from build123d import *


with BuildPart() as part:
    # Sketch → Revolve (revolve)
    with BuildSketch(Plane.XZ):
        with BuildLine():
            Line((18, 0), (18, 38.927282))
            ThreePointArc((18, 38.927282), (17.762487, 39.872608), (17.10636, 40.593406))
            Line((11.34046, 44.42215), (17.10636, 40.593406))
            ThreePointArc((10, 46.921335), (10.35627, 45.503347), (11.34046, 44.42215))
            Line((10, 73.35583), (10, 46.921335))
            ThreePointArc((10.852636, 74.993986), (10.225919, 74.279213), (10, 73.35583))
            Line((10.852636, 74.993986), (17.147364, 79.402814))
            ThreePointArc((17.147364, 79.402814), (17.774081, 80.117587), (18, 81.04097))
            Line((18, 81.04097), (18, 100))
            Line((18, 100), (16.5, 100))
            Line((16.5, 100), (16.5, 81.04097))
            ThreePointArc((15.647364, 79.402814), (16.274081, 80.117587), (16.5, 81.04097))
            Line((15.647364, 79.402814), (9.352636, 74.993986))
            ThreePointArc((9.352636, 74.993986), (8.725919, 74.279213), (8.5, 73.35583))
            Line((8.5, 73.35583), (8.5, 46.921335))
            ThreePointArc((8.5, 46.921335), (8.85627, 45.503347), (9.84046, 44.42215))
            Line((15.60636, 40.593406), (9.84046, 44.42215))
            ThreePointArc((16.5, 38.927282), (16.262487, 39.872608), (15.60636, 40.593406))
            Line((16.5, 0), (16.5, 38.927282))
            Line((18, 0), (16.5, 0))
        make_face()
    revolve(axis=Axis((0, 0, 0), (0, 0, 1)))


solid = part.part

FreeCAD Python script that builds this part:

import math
import FreeCAD as App
import Part
import Sketcher

doc = App.newDocument("Part")
params = doc.addObject("Spreadsheet::Sheet", "Params")
for row, (alias, value) in enumerate([
    ("sketch1_radius", "1.999999 mm"),
    ("sketch1_radius2", "3.000001 mm"),
    ("sketch1_width", "1.5 mm"),
    ("revolution_angle", "360 deg"),
], start=1):
    params.set(f"A{row}", alias)
    params.set(f"B{row}", "=" + value)
    params.setAlias(f"B{row}", alias)

body = doc.addObject("PartDesign::Body", "Body")

# Sketch on XZ plane
sketch1 = body.newObject("Sketcher::SketchObject", "Sketch")
sketch1.AttachmentSupport = (doc.getObject("XZ_Plane"), [""])
sketch1.MapMode = "FlatFace"
sketch1.addGeometry([
    Part.LineSegment(App.Vector(18, 0, 0), App.Vector(18, 38.9, 0)),  # 0
    Part.ArcOfCircle(Part.Circle(App.Vector(16, 38.9, 0), App.Vector(0, 0, 1), 2), math.radians(0), math.radians(56)),  # 1
    Part.LineSegment(App.Vector(17.1, 40.6, 0), App.Vector(11.3, 44.4, 0)),  # 2
    Part.ArcOfCircle(Part.Circle(App.Vector(13, 46.9, 0), App.Vector(0, 0, 1), 3), math.radians(-180), math.radians(-124)),  # 3
    Part.LineSegment(App.Vector(10, 46.9, 0), App.Vector(10, 73.4, 0)),  # 4
    Part.ArcOfCircle(Part.Circle(App.Vector(12, 73.4, 0), App.Vector(0, 0, 1), 2), math.radians(125), math.radians(180)),  # 5
    Part.LineSegment(App.Vector(10.9, 75, 0), App.Vector(17.1, 79.4, 0)),  # 6
    Part.ArcOfCircle(Part.Circle(App.Vector(16, 81, 0), App.Vector(0, 0, 1), 2), math.radians(-55), math.radians(0)),  # 7
    Part.LineSegment(App.Vector(18, 81, 0), App.Vector(18, 100, 0)),  # 8
    Part.LineSegment(App.Vector(18, 100, 0), App.Vector(16.5, 100, 0)),  # 9
    Part.LineSegment(App.Vector(16.5, 100, 0), App.Vector(16.5, 81, 0)),  # 10
    Part.ArcOfCircle(Part.Circle(App.Vector(14.5, 81, 0), App.Vector(0, 0, 1), 2), math.radians(-55), math.radians(0)),  # 11
    Part.LineSegment(App.Vector(15.6, 79.4, 0), App.Vector(9.4, 75, 0)),  # 12
    Part.ArcOfCircle(Part.Circle(App.Vector(10.5, 73.4, 0), App.Vector(0, 0, 1), 2), math.radians(125), math.radians(180)),  # 13
    Part.LineSegment(App.Vector(8.5, 73.4, 0), App.Vector(8.5, 46.9, 0)),  # 14
    Part.ArcOfCircle(Part.Circle(App.Vector(11.5, 46.9, 0), App.Vector(0, 0, 1), 3), math.radians(-180), math.radians(-124)),  # 15
    Part.LineSegment(App.Vector(9.8, 44.4, 0), App.Vector(15.6, 40.6, 0)),  # 16
    Part.ArcOfCircle(Part.Circle(App.Vector(14.5, 38.9, 0), App.Vector(0, 0, 1), 2), math.radians(0), math.radians(56)),  # 17
    Part.LineSegment(App.Vector(16.5, 38.9, 0), App.Vector(16.5, 0, 0)),  # 18
    Part.LineSegment(App.Vector(16.5, 0, 0), App.Vector(18, 0, 0)),  # 19
], False)
sketch1.addConstraint([
    Sketcher.Constraint("Tangent", 0, 2, 1, 1),
    Sketcher.Constraint("Tangent", 1, 2, 2, 1),
    Sketcher.Constraint("Tangent", 2, 2, 3, 2),
    Sketcher.Constraint("Tangent", 3, 1, 4, 1),
    Sketcher.Constraint("Tangent", 4, 2, 5, 2),
    Sketcher.Constraint("Tangent", 5, 1, 6, 1),
    Sketcher.Constraint("Tangent", 6, 2, 7, 1),
    Sketcher.Constraint("Tangent", 7, 2, 8, 1),
    Sketcher.Constraint("Coincident", 8, 2, 9, 1),
    Sketcher.Constraint("Coincident", 9, 2, 10, 1),
    Sketcher.Constraint("Tangent", 10, 2, 11, 2),
    Sketcher.Constraint("Tangent", 11, 1, 12, 1),
    Sketcher.Constraint("Tangent", 12, 2, 13, 1),
    Sketcher.Constraint("Tangent", 13, 2, 14, 1),
    Sketcher.Constraint("Tangent", 14, 2, 15, 1),
    Sketcher.Constraint("Tangent", 15, 2, 16, 1),
    Sketcher.Constraint("Tangent", 16, 2, 17, 2),
    Sketcher.Constraint("Tangent", 17, 1, 18, 1),
    Sketcher.Constraint("Coincident", 18, 2, 19, 1),
    Sketcher.Constraint("Coincident", 19, 2, 0, 1),
    Sketcher.Constraint("Vertical", 0),
    Sketcher.Constraint("Vertical", 4),
    Sketcher.Constraint("Vertical", 8),
    Sketcher.Constraint("Horizontal", 9),
    Sketcher.Constraint("Vertical", 10),
    Sketcher.Constraint("Vertical", 14),
    Sketcher.Constraint("Vertical", 18),
    Sketcher.Constraint("Horizontal", 19),
    Sketcher.Constraint("Equal", 1, 5),
    Sketcher.Constraint("Equal", 5, 7),
    Sketcher.Constraint("Equal", 7, 11),
    Sketcher.Constraint("Equal", 11, 13),
    Sketcher.Constraint("Equal", 3, 15),
    Sketcher.Constraint("Equal", 13, 17),
    Sketcher.Constraint("PointOnObject", 18, 2, -1),
    Sketcher.Constraint("Parallel", 6, 12),
    Sketcher.Constraint("Parallel", 2, 16),
    Sketcher.Constraint("Horizontal", 7, 3, 11, 3),
    Sketcher.Constraint("Horizontal", 5, 3, 13, 3),
    Sketcher.Constraint("Horizontal", 3, 3, 15, 3),
    Sketcher.Constraint("Horizontal", 1, 3, 17, 3),
    Sketcher.Constraint("Vertical", 1, 3, 7, 3),
    Sketcher.Constraint("Radius", 1, 1.999999),
    Sketcher.Constraint("Radius", 3, 3.000001),
    Sketcher.Constraint("DistanceX", 9, 2, 9, 1, 1.5),
    Sketcher.Constraint("DistanceX", -1, 1, 1, 3, 16.000001),
    Sketcher.Constraint("DistanceX", -1, 1, 3, 3, 13.000001),
    Sketcher.Constraint("DistanceY", -1, 1, 8, 2, 100.0),
    Sketcher.Constraint("DistanceY", 0, 1, 0, 2, 38.927282),
    Sketcher.Constraint("DistanceY", 8, 1, 8, 2, 18.95903),
    Sketcher.Constraint("DistanceX", 2, 2, 1, 2, 5.7659),
    Sketcher.Constraint("Distance", 6, 7.685139),
])
sketch1.setExpression("Constraints[42]", "Params.sketch1_radius")
sketch1.setExpression("Constraints[43]", "Params.sketch1_radius2")
sketch1.setExpression("Constraints[44]", "Params.sketch1_width")
revolution = body.newObject("PartDesign::Revolution", "Revolution")
revolution.Profile = sketch1
revolution.ReferenceAxis = (sketch1, ["V_Axis"])
revolution.setExpression("Angle", "Params.revolution_angle")

doc.recompute()
